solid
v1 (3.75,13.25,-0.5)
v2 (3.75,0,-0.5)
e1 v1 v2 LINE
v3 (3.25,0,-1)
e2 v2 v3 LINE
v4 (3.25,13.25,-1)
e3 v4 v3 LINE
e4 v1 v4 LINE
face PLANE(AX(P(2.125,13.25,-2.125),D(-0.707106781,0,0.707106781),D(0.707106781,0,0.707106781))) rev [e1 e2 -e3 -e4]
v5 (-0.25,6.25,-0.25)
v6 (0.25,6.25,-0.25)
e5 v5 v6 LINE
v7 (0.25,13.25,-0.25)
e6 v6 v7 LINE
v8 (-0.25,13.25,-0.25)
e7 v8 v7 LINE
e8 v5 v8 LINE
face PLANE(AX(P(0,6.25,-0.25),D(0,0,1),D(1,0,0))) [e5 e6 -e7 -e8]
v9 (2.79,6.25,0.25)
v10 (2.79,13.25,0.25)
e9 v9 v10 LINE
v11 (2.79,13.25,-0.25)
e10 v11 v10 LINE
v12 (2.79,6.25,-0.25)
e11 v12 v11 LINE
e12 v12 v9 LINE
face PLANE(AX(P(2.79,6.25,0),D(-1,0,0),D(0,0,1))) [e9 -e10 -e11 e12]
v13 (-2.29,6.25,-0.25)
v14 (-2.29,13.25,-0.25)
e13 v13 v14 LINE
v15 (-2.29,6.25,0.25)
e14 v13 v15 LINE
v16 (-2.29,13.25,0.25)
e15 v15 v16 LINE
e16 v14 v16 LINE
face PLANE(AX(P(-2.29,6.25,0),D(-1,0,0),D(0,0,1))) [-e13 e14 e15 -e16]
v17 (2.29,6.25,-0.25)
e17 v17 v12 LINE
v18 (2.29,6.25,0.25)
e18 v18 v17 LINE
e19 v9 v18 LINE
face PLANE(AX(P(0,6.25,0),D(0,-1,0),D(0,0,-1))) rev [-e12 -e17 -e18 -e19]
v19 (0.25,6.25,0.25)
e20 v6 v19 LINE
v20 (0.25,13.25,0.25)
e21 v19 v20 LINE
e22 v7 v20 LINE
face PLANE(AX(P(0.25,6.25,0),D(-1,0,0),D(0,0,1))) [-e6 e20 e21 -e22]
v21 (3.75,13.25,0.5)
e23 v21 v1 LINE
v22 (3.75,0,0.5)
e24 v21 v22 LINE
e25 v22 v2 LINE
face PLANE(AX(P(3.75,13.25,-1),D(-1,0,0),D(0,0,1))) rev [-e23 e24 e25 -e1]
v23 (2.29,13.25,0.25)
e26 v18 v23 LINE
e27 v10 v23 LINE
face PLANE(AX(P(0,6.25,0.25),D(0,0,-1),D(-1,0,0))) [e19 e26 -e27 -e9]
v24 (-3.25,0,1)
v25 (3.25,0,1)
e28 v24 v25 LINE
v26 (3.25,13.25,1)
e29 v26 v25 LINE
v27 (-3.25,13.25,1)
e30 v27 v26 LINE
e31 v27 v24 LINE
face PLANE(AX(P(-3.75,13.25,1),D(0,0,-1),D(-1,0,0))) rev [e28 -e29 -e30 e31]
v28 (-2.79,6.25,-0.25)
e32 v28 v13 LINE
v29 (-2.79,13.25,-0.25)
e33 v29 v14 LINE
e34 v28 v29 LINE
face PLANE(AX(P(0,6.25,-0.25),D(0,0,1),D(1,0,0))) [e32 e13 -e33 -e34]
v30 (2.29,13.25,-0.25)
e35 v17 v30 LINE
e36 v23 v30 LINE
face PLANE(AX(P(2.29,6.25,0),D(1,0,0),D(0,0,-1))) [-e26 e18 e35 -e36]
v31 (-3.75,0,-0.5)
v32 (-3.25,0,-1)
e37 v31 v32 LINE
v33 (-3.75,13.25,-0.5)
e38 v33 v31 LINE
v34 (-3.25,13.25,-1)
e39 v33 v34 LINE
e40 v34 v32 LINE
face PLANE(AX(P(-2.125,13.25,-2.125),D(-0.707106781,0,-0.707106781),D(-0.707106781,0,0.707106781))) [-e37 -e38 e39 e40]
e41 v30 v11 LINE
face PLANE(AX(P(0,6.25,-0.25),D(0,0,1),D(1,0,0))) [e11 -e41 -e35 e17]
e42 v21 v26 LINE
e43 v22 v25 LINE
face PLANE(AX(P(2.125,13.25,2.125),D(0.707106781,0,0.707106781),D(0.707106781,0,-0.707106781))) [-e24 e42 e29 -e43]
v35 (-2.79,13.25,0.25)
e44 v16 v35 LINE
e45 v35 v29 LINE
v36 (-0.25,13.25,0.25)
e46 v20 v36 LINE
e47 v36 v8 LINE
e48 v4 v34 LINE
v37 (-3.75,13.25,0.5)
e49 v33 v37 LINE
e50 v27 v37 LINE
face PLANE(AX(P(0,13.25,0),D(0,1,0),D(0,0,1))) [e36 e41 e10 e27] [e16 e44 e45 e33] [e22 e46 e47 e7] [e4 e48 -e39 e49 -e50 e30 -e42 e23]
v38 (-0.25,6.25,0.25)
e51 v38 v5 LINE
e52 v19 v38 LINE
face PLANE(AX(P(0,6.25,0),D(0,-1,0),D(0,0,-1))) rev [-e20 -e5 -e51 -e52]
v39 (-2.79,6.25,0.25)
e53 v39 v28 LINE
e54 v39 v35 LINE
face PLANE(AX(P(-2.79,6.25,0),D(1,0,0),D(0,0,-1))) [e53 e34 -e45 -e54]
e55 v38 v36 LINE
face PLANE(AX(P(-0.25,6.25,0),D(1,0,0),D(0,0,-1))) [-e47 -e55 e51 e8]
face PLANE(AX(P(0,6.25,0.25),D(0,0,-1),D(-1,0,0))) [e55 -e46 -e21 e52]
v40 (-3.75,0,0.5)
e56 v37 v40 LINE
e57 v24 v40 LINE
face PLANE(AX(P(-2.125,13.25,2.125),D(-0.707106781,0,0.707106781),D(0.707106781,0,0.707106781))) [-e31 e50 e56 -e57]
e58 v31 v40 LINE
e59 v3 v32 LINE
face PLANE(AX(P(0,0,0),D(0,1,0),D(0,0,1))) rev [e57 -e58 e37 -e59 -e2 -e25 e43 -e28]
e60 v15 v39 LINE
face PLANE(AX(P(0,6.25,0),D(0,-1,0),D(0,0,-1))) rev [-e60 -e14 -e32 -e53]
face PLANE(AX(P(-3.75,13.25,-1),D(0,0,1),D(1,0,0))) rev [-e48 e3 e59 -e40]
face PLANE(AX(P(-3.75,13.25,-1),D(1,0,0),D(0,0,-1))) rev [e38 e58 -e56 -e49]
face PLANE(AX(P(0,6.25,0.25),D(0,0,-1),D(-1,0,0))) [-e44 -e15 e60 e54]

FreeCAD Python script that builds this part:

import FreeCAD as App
import Part
import Sketcher

V = App.Vector

doc = App.newDocument("Part")
body = doc.addObject("PartDesign::Body", "Body")

# Sketch on XZ plane
sketch1 = body.newObject("Sketcher::SketchObject", "Sketch")
sketch1.AttachmentSupport = (doc.getObject("XZ_Plane"), [""])
sketch1.MapMode = "FlatFace"
sketch1.addGeometry(Part.LineSegment(V(-3.8, -1, 0), V(-3.8, 1, 0)), False)
sketch1.addGeometry(Part.LineSegment(V(-3.8, 1, 0), V(3.8, 1, 0)), False)
sketch1.addGeometry(Part.LineSegment(V(3.8, 1, 0), V(3.8, -1, 0)), False)
sketch1.addGeometry(Part.LineSegment(V(3.8, -1, 0), V(-3.8, -1, 0)), False)
sketch1.addConstraint(Sketcher.Constraint("Coincident", 0, 2, 1, 1))
sketch1.addConstraint(Sketcher.Constraint("Coincident", 1, 2, 2, 1))
sketch1.addConstraint(Sketcher.Constraint("Coincident", 2, 2, 3, 1))
sketch1.addConstraint(Sketcher.Constraint("Coincident", 3, 2, 0, 1))
sketch1.addConstraint(Sketcher.Constraint("Vertical", 0))
sketch1.addConstraint(Sketcher.Constraint("Horizontal", 1))
sketch1.addConstraint(Sketcher.Constraint("Vertical", 2))
sketch1.addConstraint(Sketcher.Constraint("Horizontal", 3))
sketch1.addConstraint(Sketcher.Constraint("Symmetric", 0, 2, 2, 2, -1, 1))
sketch1.addConstraint(Sketcher.Constraint("DistanceY", 0, 1, 0, 2, 2.0))
sketch1.addConstraint(Sketcher.Constraint("DistanceX", 1, 1, 1, 2, 7.5))
pad1 = body.newObject("PartDesign::Pad", "Pad")
pad1.Profile = sketch1
pad1.Length = 13.25
pad1.Reversed = True

# Sketch on XZ plane
sketch2 = body.newObject("Sketcher::SketchObject", "Sketch001")
sketch2.AttachmentSupport = (doc.getObject("XZ_Plane"), [""])
sketch2.MapMode = "FlatFace"
sketch2.AttachmentOffset = App.Placement(V(0, 0, -13.25), App.Rotation())
sketch2.addGeometry(Part.LineSegment(V(2.3, -0.2, 0), V(2.3, 0.2, 0)), False)
sketch2.addGeometry(Part.LineSegment(V(2.3, 0.2, 0), V(2.8, 0.2, 0)), False)
sketch2.addGeometry(Part.LineSegment(V(2.8, 0.2, 0), V(2.8, -0.2, 0)), False)
sketch2.addGeometry(Part.LineSegment(V(2.8, -0.2, 0), V(2.3, -0.2, 0)), False)
sketch2.addGeometry(Part.LineSegment(V(-0.2, -0.2, 0), V(-0.2, 0.2, 0)), False)
sketch2.addGeometry(Part.LineSegment(V(-0.2, 0.2, 0), V(0.2, 0.2, 0)), False)
sketch2.addGeometry(Part.LineSegment(V(0.2, 0.2, 0), V(0.2, -0.2, 0)), False)
sketch2.addGeometry(Part.LineSegment(V(0.2, -0.2, 0), V(-0.2, -0.2, 0)), False)
sketch2.addGeometry(Part.LineSegment(V(-2.8, -0.2, 0), V(-2.8, 0.2, 0)), False)
sketch2.addGeometry(Part.LineSegment(V(-2.8, 0.2, 0), V(-2.3, 0.2, 0)), False)
sketch2.addGeometry(Part.LineSegment(V(-2.3, 0.2, 0), V(-2.3, -0.2, 0)), False)
sketch2.addGeometry(Part.LineSegment(V(-2.3, -0.2, 0), V(-2.8, -0.2, 0)), False)
sketch2.addConstraint(Sketcher.Constraint("Coincident", 0, 2, 1, 1))
sketch2.addConstraint(Sketcher.Constraint("Coincident", 1, 2, 2, 1))
sketch2.addConstraint(Sketcher.Constraint("Coincident", 2, 2, 3, 1))
sketch2.addConstraint(Sketcher.Constraint("Coincident", 3, 2, 0, 1))
sketch2.addConstraint(Sketcher.Constraint("Coincident", 4, 2, 5, 1))
sketch2.addConstraint(Sketcher.Constraint("Coincident", 5, 2, 6, 1))
sketch2.addConstraint(Sketcher.Constraint("Coincident", 6, 2, 7, 1))
sketch2.addConstraint(Sketcher.Constraint("Coincident", 7, 2, 4, 1))
sketch2.addConstraint(Sketcher.Constraint("Coincident", 8, 2, 9, 1))
sketch2.addConstraint(Sketcher.Constraint("Coincident", 9, 2, 10, 1))
sketch2.addConstraint(Sketcher.Constraint("Coincident", 10, 2, 11, 1))
sketch2.addConstraint(Sketcher.Constraint("Coincident", 11, 2, 8, 1))
sketch2.addConstraint(Sketcher.Constraint("Vertical", 0))
sketch2.addConstraint(Sketcher.Constraint("Horizontal", 1))
sketch2.addConstraint(Sketcher.Constraint("Vertical", 2))
sketch2.addConstraint(Sketcher.Constraint("Horizontal", 3))
sketch2.addConstraint(Sketcher.Constraint("Vertical", 4))
sketch2.addConstraint(Sketcher.Constraint("Horizontal", 5))
sketch2.addConstraint(Sketcher.Constraint("Vertical", 6))
sketch2.addConstraint(Sketcher.Constraint("Horizontal", 7))
sketch2.addConstraint(Sketcher.Constraint("Vertical", 8))
sketch2.addConstraint(Sketcher.Constraint("Horizontal", 9))
sketch2.addConstraint(Sketcher.Constraint("Vertical", 10))
sketch2.addConstraint(Sketcher.Constraint("Horizontal", 11))
sketch2.addConstraint(Sketcher.Constraint("Symmetric", 4, 2, 6, 2, -1, 1))
sketch2.addConstraint(Sketcher.Constraint("Symmetric", 2, 2, 8, 2, -1, 1))
sketch2.addConstraint(Sketcher.Constraint("Symmetric", 0, 2, 10, 2, -1, 1))
sketch2.addConstraint(Sketcher.Constraint("Horizontal", 1, 2, 4, 2))
sketch2.addConstraint(Sketcher.Constraint("Horizontal", 3, 2, 6, 2))
sketch2.addConstraint(Sketcher.Constraint("Equal", 3, 5))
sketch2.addConstraint(Sketcher.Constraint("Equal", 11, 0))
sketch2.addConstraint(Sketcher.Constraint("DistanceX", 1, 1, 1, 2, 0.5))
sketch2.addConstraint(Sketcher.Constraint("DistanceX", -1, 1, 0, 2, 2.29))
pocket1 = body.newObject("PartDesign::Pocket", "Pocket")
pocket1.Profile = sketch2
pocket1.Length = 7
pocket1.Reversed = True

# Sketch on XZ plane
sketch3 = body.newObject("Sketcher::SketchObject", "Sketch002")
sketch3.AttachmentSupport = (doc.getObject("XZ_Plane"), [""])
sketch3.MapMode = "FlatFace"
sketch3.addGeometry(Part.LineSegment(V(-3.2, 1, 0), V(-3.8, 0.5, 0)), False)
sketch3.addGeometry(Part.LineSegment(V(-3.8, 0.5, 0), V(-3.8, 1, 0)), False)
sketch3.addGeometry(Part.LineSegment(V(-3.8, 1, 0), V(-3.2, 1, 0)), False)
sketch3.addGeometry(Part.LineSegment(V(-3.8, -0.5, 0), V(-3.2, -1, 0)), False)
sketch3.addGeometry(Part.LineSegment(V(-3.2, -1, 0), V(-3.8, -1, 0)), False)
sketch3.addGeometry(Part.LineSegment(V(-3.8, -1, 0), V(-3.8, -0.5, 0)), False)
sketch3.addGeometry(Part.LineSegment(V(3.8, 0.5, 0), V(3.2, 1, 0)), False)
sketch3.addGeometry(Part.LineSegment(V(3.2, 1, 0), V(3.8, 1, 0)), False)
sketch3.addGeometry(Part.LineSegment(V(3.8, 1, 0), V(3.8, 0.5, 0)), False)
sketch3.addGeometry(Part.LineSegment(V(3.8, -1, 0), V(3.2, -1, 0)), False)
sketch3.addGeometry(Part.LineSegment(V(3.2, -1, 0), V(3.8, -0.5, 0)), False)
sketch3.addGeometry(Part.LineSegment(V(3.8, -0.5, 0), V(3.8, -1, 0)), False)
sketch3.addConstraint(Sketcher.Constraint("Coincident", 0, 2, 1, 1))
sketch3.addConstraint(Sketcher.Constraint("Coincident", 1, 2, 2, 1))
sketch3.addConstraint(Sketcher.Constraint("Coincident", 2, 2, 0, 1))
sketch3.addConstraint(Sketcher.Constraint("Coincident", 3, 2, 4, 1))
sketch3.addConstraint(Sketcher.Constraint("Coincident", 4, 2, 5, 1))
sketch3.addConstraint(Sketcher.Constraint("Coincident", 5, 2, 3, 1))
sketch3.addConstraint(Sketcher.Constraint("Coincident", 6, 2, 7, 1))
sketch3.addConstraint(Sketcher.Constraint("Coincident", 7, 2, 8, 1))
sketch3.addConstraint(Sketcher.Constraint("Coincident", 8, 2, 6, 1))
sketch3.addConstraint(Sketcher.Constraint("Coincident", 9, 2, 10, 1))
sketch3.addConstraint(Sketcher.Constraint("Coincident", 10, 2, 11, 1))
sketch3.addConstraint(Sketcher.Constraint("Coincident", 11, 2, 9, 1))
sketch3.addConstraint(Sketcher.Constraint("Vertical", 1))
sketch3.addConstraint(Sketcher.Constraint("Horizontal", 2))
sketch3.addConstraint(Sketcher.Constraint("Horizontal", 4))
sketch3.addConstraint(Sketcher.Constraint("Vertical", 5))
sketch3.addConstraint(Sketcher.Constraint("Horizontal", 7))
sketch3.addConstraint(Sketcher.Constraint("Vertical", 8))
sketch3.addConstraint(Sketcher.Constraint("Horizontal", 9))
sketch3.addConstraint(Sketcher.Constraint("Vertical", 11))
sketch3.addConstraint(Sketcher.Constraint("Symmetric", 3, 2, 6, 2, -1, 1))
sketch3.addConstraint(Sketcher.Constraint("Symmetric", 5, 2, 8, 2, -1, 1))
sketch3.addConstraint(Sketcher.Constraint("Symmetric", 2, 2, 9, 2, -1, 1))
sketch3.addConstraint(Sketcher.Constraint("Symmetric", 0, 2, 10, 2, -1, 1))
sketch3.addConstraint(Sketcher.Constraint("Symmetric", 2, 2, 6, 2, -2))
sketch3.addConstraint(Sketcher.Constraint("Symmetric", 0, 2, 8, 2, -2))
sketch3.addConstraint(Sketcher.Constraint("Perpendicular", 0, 3))
sketch3.addConstraint(Sketcher.Constraint("DistanceX", 2, 1, 2, 2, 0.5))
sketch3.addConstraint(Sketcher.Constraint("DistanceY", -1, 1, 1, 2, 1.0))
sketch3.addConstraint(Sketcher.Constraint("DistanceX", 1, 2, 6, 2, 7.0))
pocket2 = body.newObject("PartDesign::Pocket", "Pocket001")
pocket2.Profile = sketch3
pocket2.Type = "ThroughAll"

doc.recompute()
